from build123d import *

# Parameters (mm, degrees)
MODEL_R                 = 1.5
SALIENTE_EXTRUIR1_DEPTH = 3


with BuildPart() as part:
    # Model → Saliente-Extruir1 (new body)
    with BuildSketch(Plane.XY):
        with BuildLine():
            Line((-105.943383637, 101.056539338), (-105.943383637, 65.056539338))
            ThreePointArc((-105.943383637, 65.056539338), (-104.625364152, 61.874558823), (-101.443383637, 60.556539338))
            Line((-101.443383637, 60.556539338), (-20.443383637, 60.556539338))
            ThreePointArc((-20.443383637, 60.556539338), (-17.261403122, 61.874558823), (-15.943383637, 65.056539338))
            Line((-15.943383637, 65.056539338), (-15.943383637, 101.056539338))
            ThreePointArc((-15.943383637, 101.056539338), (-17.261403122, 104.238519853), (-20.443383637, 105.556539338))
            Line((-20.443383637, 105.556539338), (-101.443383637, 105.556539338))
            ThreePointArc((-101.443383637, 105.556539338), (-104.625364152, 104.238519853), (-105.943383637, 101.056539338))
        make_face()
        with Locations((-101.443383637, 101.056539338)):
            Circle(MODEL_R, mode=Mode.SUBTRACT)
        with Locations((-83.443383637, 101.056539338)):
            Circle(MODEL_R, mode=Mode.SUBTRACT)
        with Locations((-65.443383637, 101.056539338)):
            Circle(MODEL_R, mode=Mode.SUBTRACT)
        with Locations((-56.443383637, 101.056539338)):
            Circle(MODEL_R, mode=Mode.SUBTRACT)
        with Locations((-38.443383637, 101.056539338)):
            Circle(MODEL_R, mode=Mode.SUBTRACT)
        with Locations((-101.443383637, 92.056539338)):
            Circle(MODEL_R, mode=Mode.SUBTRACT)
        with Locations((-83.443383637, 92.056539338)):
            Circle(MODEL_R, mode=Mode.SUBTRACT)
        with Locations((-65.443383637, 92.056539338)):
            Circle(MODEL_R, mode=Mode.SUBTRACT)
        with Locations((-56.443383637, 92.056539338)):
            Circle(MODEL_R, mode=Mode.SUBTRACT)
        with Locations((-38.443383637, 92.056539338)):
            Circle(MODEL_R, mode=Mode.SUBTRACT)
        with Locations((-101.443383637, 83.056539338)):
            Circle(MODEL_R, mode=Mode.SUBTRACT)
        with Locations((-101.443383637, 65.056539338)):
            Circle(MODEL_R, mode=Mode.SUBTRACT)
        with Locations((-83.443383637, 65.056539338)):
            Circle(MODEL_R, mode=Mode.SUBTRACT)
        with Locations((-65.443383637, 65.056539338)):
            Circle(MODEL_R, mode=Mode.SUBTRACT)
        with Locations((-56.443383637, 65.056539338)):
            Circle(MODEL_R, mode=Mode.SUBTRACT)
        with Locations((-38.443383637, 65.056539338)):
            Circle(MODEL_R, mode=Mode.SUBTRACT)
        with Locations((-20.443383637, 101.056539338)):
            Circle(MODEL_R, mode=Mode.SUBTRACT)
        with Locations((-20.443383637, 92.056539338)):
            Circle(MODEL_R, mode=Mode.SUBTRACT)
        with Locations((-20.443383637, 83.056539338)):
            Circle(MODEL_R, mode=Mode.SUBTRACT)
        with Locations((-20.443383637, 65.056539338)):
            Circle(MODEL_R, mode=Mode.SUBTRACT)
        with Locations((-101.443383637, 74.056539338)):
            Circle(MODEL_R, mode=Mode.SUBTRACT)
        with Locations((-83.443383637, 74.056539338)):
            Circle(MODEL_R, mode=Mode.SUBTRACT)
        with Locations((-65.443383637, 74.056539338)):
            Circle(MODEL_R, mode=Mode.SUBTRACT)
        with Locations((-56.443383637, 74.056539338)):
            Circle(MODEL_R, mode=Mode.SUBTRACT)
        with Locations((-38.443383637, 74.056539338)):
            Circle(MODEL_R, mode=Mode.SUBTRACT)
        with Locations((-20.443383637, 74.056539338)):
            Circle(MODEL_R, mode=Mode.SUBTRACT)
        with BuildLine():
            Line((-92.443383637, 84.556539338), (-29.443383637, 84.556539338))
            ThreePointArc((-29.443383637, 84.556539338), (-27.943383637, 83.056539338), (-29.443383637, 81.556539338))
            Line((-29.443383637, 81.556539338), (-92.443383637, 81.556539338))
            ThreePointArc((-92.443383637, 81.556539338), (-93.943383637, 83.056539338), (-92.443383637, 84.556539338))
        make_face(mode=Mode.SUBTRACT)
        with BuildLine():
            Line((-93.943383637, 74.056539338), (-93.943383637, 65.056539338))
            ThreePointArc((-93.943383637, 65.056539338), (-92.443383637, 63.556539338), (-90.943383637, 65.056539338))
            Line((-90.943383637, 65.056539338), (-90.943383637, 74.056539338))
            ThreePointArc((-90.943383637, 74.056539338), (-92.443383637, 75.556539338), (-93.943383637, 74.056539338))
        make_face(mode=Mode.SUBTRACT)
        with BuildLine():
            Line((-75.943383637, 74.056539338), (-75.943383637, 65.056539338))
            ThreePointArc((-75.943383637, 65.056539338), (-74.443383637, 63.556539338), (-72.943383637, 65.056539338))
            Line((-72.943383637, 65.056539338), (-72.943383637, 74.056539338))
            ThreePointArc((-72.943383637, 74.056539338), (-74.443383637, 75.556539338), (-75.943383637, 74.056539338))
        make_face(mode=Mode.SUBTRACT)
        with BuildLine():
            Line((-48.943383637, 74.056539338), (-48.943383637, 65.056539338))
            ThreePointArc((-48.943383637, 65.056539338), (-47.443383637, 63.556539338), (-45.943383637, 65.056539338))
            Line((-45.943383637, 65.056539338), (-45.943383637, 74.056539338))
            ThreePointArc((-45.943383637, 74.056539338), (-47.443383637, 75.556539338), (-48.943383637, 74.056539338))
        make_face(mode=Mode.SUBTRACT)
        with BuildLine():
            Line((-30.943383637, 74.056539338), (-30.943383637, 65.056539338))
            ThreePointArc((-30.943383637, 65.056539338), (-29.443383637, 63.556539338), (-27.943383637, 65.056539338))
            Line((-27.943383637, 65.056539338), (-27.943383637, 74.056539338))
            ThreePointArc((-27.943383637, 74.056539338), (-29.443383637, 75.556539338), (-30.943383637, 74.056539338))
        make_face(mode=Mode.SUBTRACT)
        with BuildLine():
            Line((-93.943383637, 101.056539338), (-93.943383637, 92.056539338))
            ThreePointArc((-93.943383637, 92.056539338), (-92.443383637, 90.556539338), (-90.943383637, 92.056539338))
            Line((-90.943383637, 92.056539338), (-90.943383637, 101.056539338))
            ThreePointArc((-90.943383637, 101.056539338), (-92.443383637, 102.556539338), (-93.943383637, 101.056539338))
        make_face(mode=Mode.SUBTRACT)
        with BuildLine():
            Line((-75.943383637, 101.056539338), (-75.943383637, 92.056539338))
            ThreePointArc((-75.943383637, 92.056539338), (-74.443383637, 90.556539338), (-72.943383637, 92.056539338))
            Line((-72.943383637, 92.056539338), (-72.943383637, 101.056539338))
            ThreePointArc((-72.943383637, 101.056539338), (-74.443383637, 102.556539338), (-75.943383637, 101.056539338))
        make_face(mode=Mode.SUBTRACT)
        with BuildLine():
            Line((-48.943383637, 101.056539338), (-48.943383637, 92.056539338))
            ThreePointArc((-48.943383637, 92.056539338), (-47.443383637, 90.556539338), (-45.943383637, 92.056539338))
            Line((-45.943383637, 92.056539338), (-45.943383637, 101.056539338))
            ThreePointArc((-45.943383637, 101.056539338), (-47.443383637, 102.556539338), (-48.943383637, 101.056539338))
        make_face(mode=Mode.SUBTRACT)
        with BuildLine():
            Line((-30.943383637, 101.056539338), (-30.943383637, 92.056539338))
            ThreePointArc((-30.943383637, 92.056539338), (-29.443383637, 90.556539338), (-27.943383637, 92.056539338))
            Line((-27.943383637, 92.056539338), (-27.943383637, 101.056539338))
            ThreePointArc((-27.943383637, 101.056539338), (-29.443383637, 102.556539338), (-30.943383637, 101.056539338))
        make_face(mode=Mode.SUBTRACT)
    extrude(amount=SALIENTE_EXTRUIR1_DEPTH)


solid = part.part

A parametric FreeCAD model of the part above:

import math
import FreeCAD as App
import Part
import Sketcher
Q = App.Units.Quantity

doc = App.newDocument("Part")
params = doc.addObject("Spreadsheet::Sheet", "Params")
for row, (alias, value) in enumerate([
    ("sketch1_diameter", "3 mm"),
    ("sketch1_radius", "4.5 mm"),
    ("sketch1_width", "81 mm"),
    ("sketch1_width2", "63 mm"),
    ("sketch1_height", "36 mm"),
    ("pad1_length", "3 mm"),
], start=1):
    params.set(f"A{row}", alias)
    params.set(f"B{row}", "=" + value)
    params.setAlias(f"B{row}", alias)

body = doc.addObject("PartDesign::Body", "Body")

# Sketch on XY plane
sketch1 = body.newObject("Sketcher::SketchObject", "Sketch")
sketch1.AttachmentSupport = (doc.getObject("XY_Plane"), [""])
sketch1.MapMode = "FlatFace"
sketch1.addGeometry(Part.LineSegment(App.Vector(-105.9, 101.1, 0), App.Vector(-105.9, 65.1, 0)), False)
sketch1.addGeometry(Part.ArcOfCircle(Part.Circle(App.Vector(-101.4, 65.1, 0), App.Vector(0, 0, 1), 4.5), math.radians(-180), math.radians(-90)), False)
sketch1.addGeometry(Part.LineSegment(App.Vector(-101.4, 60.6, 0), App.Vector(-20.4, 60.6, 0)), False)
sketch1.addGeometry(Part.ArcOfCircle(Part.Circle(App.Vector(-20.4, 65.1, 0), App.Vector(0, 0, 1), 4.5), math.radians(-90), math.radians(0)), False)
sketch1.addGeometry(Part.LineSegment(App.Vector(-15.9, 65.1, 0), App.Vector(-15.9, 101.1, 0)), False)
sketch1.addGeometry(Part.ArcOfCircle(Part.Circle(App.Vector(-20.4, 101.1, 0), App.Vector(0, 0, 1), 4.5), math.radians(0), math.radians(90)), False)
sketch1.addGeometry(Part.LineSegment(App.Vector(-20.4, 105.6, 0), App.Vector(-101.4, 105.6, 0)), False)
sketch1.addGeometry(Part.ArcOfCircle(Part.Circle(App.Vector(-101.4, 101.1, 0), App.Vector(0, 0, 1), 4.5), math.radians(90), math.radians(180)), False)
sketch1.addGeometry(Part.Circle(App.Vector(-101.4, 65.1, 0), App.Vector(0, 0, 1), 1.5), False)
sketch1.addGeometry(Part.Circle(App.Vector(-83.4, 65.1, 0), App.Vector(0, 0, 1), 1.5), False)
sketch1.addGeometry(Part.LineSegment(App.Vector(-93.9, 65.1, 0), App.Vector(-93.9, 74.1, 0)), False)
sketch1.addGeometry(Part.ArcOfCircle(Part.Circle(App.Vector(-92.4, 74.1, 0), App.Vector(0, 0, 1), 1.5), math.radians(0), math.radians(180)), False)
sketch1.addGeometry(Part.LineSegment(App.Vector(-90.9, 74.1, 0), App.Vector(-90.9, 65.1, 0)), False)
sketch1.addGeometry(Part.ArcOfCircle(Part.Circle(App.Vector(-92.4, 65.1, 0), App.Vector(0, 0, 1), 1.5), math.radians(180), math.radians(360)), False)
sketch1.addGeometry(Part.Circle(App.Vector(-65.4, 65.1, 0), App.Vector(0, 0, 1), 1.5), False)
sketch1.addGeometry(Part.LineSegment(App.Vector(-75.9, 65.1, 0), App.Vector(-75.9, 74.1, 0)), False)
sketch1.addGeometry(Part.ArcOfCircle(Part.Circle(App.Vector(-74.4, 74.1, 0), App.Vector(0, 0, 1), 1.5), math.radians(0), math.radians(180)), False)
sketch1.addGeometry(Part.LineSegment(App.Vector(-72.9, 74.1, 0), App.Vector(-72.9, 65.1, 0)), False)
sketch1.addGeometry(Part.ArcOfCircle(Part.Circle(App.Vector(-74.4, 65.1, 0), App.Vector(0, 0, 1), 1.5), math.radians(180), math.radians(360)), False)
sketch1.addGeometry(Part.Circle(App.Vector(-101.4, 74.1, 0), App.Vector(0, 0, 1), 1.5), False)
sketch1.addGeometry(Part.Circle(App.Vector(-83.4, 74.1, 0), App.Vector(0, 0, 1), 1.5), False)
sketch1.addGeometry(Part.Circle(App.Vector(-65.4, 74.1, 0), App.Vector(0, 0, 1), 1.5), False)
sketch1.addGeometry(Part.Circle(App.Vector(-56.4, 65.1, 0), App.Vector(0, 0, 1), 1.5), False)
sketch1.addGeometry(Part.LineSegment(App.Vector(-48.9, 65.1, 0), App.Vector(-48.9, 74.1, 0)), False)
sketch1.addGeometry(Part.ArcOfCircle(Part.Circle(App.Vector(-47.4, 74.1, 0), App.Vector(0, 0, 1), 1.5), math.radians(0), math.radians(180)), False)
sketch1.addGeometry(Part.LineSegment(App.Vector(-45.9, 74.1, 0), App.Vector(-45.9, 65.1, 0)), False)
sketch1.addGeometry(Part.ArcOfCircle(Part.Circle(App.Vector(-47.4, 65.1, 0), App.Vector(0, 0, 1), 1.5), math.radians(180), math.radians(360)), False)
sketch1.addGeometry(Part.Circle(App.Vector(-38.4, 65.1, 0), App.Vector(0, 0, 1), 1.5), False)
sketch1.addGeometry(Part.Circle(App.Vector(-20.4, 65.1, 0), App.Vector(0, 0, 1), 1.5), False)
sketch1.addGeometry(Part.LineSegment(App.Vector(-30.9, 65.1, 0), App.Vector(-30.9, 74.1, 0)), False)
sketch1.addGeometry(Part.ArcOfCircle(Part.Circle(App.Vector(-29.4, 74.1, 0), App.Vector(0, 0, 1), 1.5), math.radians(0), math.radians(180)), False)
sketch1.addGeometry(Part.LineSegment(App.Vector(-27.9, 74.1, 0), App.Vector(-27.9, 65.1, 0)), False)
sketch1.addGeometry(Part.ArcOfCircle(Part.Circle(App.Vector(-29.4, 65.1, 0), App.Vector(0, 0, 1), 1.5), math.radians(180), math.radians(360)), False)
sketch1.addGeometry(Part.Circle(App.Vector(-56.4, 74.1, 0), App.Vector(0, 0, 1), 1.5), False)
sketch1.addGeometry(Part.Circle(App.Vector(-38.4, 74.1, 0), App.Vector(0, 0, 1), 1.5), False)
sketch1.addGeometry(Part.Circle(App.Vector(-20.4, 74.1, 0), App.Vector(0, 0, 1), 1.5), False)
sketch1.addGeometry(Part.Circle(App.Vector(-101.4, 83.1, 0), App.Vector(0, 0, 1), 1.5), False)
sketch1.addGeometry(Part.Circle(App.Vector(-101.4, 92.1, 0), App.Vector(0, 0, 1), 1.5), False)
sketch1.addGeometry(Part.Circle(App.Vector(-83.4, 92.1, 0), App.Vector(0, 0, 1), 1.5), False)
sketch1.addGeometry(Part.Circle(App.Vector(-65.4, 92.1, 0), App.Vector(0, 0, 1), 1.5), False)
sketch1.addGeometry(Part.LineSegment(App.Vector(-93.9, 92.1, 0), App.Vector(-93.9, 101.1, 0)), False)
sketch1.addGeometry(Part.ArcOfCircle(Part.Circle(App.Vector(-92.4, 101.1, 0), App.Vector(0, 0, 1), 1.5), math.radians(0), math.radians(180)), False)
sketch1.addGeometry(Part.LineSegment(App.Vector(-90.9, 101.1, 0), App.Vector(-90.9, 92.1, 0)), False)
sketch1.addGeometry(Part.ArcOfCircle(Part.Circle(App.Vector(-92.4, 92.1, 0), App.Vector(0, 0, 1), 1.5), math.radians(180), math.radians(360)), False)
sketch1.addGeometry(Part.Circle(App.Vector(-101.4, 101.1, 0), App.Vector(0, 0, 1), 1.5), False)
sketch1.addGeometry(Part.Circle(App.Vector(-83.4, 101.1, 0), App.Vector(0, 0, 1), 1.5), False)
sketch1.addGeometry(Part.LineSegment(App.Vector(-75.9, 92.1, 0), App.Vector(-75.9, 101.1, 0)), False)
sketch1.addGeometry(Part.ArcOfCircle(Part.Circle(App.Vector(-74.4, 101.1, 0), App.Vector(0, 0, 1), 1.5), math.radians(0), math.radians(180)), False)
sketch1.addGeometry(Part.LineSegment(App.Vector(-72.9, 101.1, 0), App.Vector(-72.9, 92.1, 0)), False)
sketch1.addGeometry(Part.ArcOfCircle(Part.Circle(App.Vector(-74.4, 92.1, 0), App.Vector(0, 0, 1), 1.5), math.radians(180), math.radians(360)), False)
sketch1.addGeometry(Part.Circle(App.Vector(-65.4, 101.1, 0), App.Vector(0, 0, 1), 1.5), False)
sketch1.addGeometry(Part.ArcOfCircle(Part.Circle(App.Vector(-92.4, 83.1, 0), App.Vector(0, 0, 1), 1.5), math.radians(90), math.radians(270)), False)
sketch1.addGeometry(Part.LineSegment(App.Vector(-92.4, 84.6, 0), App.Vector(-29.4, 84.6, 0)), False)
sketch1.addGeometry(Part.ArcOfCircle(Part.Circle(App.Vector(-29.4, 83.1, 0), App.Vector(0, 0, 1), 1.5), math.radians(-90), math.radians(90)), False)
sketch1.addGeometry(Part.LineSegment(App.Vector(-29.4, 81.6, 0), App.Vector(-92.4, 81.6, 0)), False)
sketch1.addGeometry(Part.Circle(App.Vector(-56.4, 92.1, 0), App.Vector(0, 0, 1), 1.5), False)
sketch1.addGeometry(Part.Circle(App.Vector(-20.4, 83.1, 0), App.Vector(0, 0, 1), 1.5), False)
sketch1.addGeometry(Part.Circle(App.Vector(-38.4, 92.1, 0), App.Vector(0, 0, 1), 1.5), False)
sketch1.addGeometry(Part.Circle(App.Vector(-20.4, 92.1, 0), App.Vector(0, 0, 1), 1.5), False)
sketch1.addGeometry(Part.LineSegment(App.Vector(-48.9, 92.1, 0), App.Vector(-48.9, 101.1, 0)), False)
sketch1.addGeometry(Part.ArcOfCircle(Part.Circle(App.Vector(-47.4, 101.1, 0), App.Vector(0, 0, 1), 1.5), math.radians(0), math.radians(180)), False)
sketch1.addGeometry(Part.LineSegment(App.Vector(-45.9, 101.1, 0), App.Vector(-45.9, 92.1, 0)), False)
sketch1.addGeometry(Part.ArcOfCircle(Part.Circle(App.Vector(-47.4, 92.1, 0), App.Vector(0, 0, 1), 1.5), math.radians(180), math.radians(360)), False)
sketch1.addGeometry(Part.Circle(App.Vector(-56.4, 101.1, 0), App.Vector(0, 0, 1), 1.5), False)
sketch1.addGeometry(Part.LineSegment(App.Vector(-30.9, 92.1, 0), App.Vector(-30.9, 101.1, 0)), False)
sketch1.addGeometry(Part.ArcOfCircle(Part.Circle(App.Vector(-29.4, 101.1, 0), App.Vector(0, 0, 1), 1.5), math.radians(0), math.radians(180)), False)
sketch1.addGeometry(Part.LineSegment(App.Vector(-27.9, 101.1, 0), App.Vector(-27.9, 92.1, 0)), False)
sketch1.addGeometry(Part.ArcOfCircle(Part.Circle(App.Vector(-29.4, 92.1, 0), App.Vector(0, 0, 1), 1.5), math.radians(180), math.radians(360)), False)
sketch1.addGeometry(Part.Circle(App.Vector(-38.4, 101.1, 0), App.Vector(0, 0, 1), 1.5), False)
sketch1.addGeometry(Part.Circle(App.Vector(-20.4, 101.1, 0), App.Vector(0, 0, 1), 1.5), False)
sketch1.addConstraint(Sketcher.Constraint("Tangent", 0, 2, 1, 1))
sketch1.addConstraint(Sketcher.Constraint("Tangent", 1, 2, 2, 1))
sketch1.addConstraint(Sketcher.Constraint("Tangent", 2, 2, 3, 1))
sketch1.addConstraint(Sketcher.Constraint("Tangent", 3, 2, 4, 1))
sketch1.addConstraint(Sketcher.Constraint("Tangent", 4, 2, 5, 1))
sketch1.addConstraint(Sketcher.Constraint("Tangent", 5, 2, 6, 1))
sketch1.addConstraint(Sketcher.Constraint("Tangent", 6, 2, 7, 1))
sketch1.addConstraint(Sketcher.Constraint("Tangent", 7, 2, 0, 1))
sketch1.addConstraint(Sketcher.Constraint("Tangent", 10, 2, 11, 2))
sketch1.addConstraint(Sketcher.Constraint("Tangent", 11, 1, 12, 1))
sketch1.addConstraint(Sketcher.Constraint("Tangent", 12, 2, 13, 2))
sketch1.addConstraint(Sketcher.Constraint("Tangent", 13, 1, 10, 1))
sketch1.addConstraint(Sketcher.Constraint("Tangent", 15, 2, 16, 2))
sketch1.addConstraint(Sketcher.Constraint("Tangent", 16, 1, 17, 1))
sketch1.addConstraint(Sketcher.Constraint("Tangent", 17, 2, 18, 2))
sketch1.addConstraint(Sketcher.Constraint("Tangent", 18, 1, 15, 1))
sketch1.addConstraint(Sketcher.Constraint("Tangent", 23, 2, 24, 2))
sketch1.addConstraint(Sketcher.Constraint("Tangent", 24, 1, 25, 1))
sketch1.addConstraint(Sketcher.Constraint("Tangent", 25, 2, 26, 2))
sketch1.addConstraint(Sketcher.Constraint("Tangent", 26, 1, 23, 1))
sketch1.addConstraint(Sketcher.Constraint("Tangent", 29, 2, 30, 2))
sketch1.addConstraint(Sketcher.Constraint("Tangent", 30, 1, 31, 1))
sketch1.addConstraint(Sketcher.Constraint("Tangent", 31, 2, 32, 2))
sketch1.addConstraint(Sketcher.Constraint("Tangent", 32, 1, 29, 1))
sketch1.addConstraint(Sketcher.Constraint("Tangent", 40, 2, 41, 2))
sketch1.addConstraint(Sketcher.Constraint("Tangent", 41, 1, 42, 1))
sketch1.addConstraint(Sketcher.Constraint("Tangent", 42, 2, 43, 2))
sketch1.addConstraint(Sketcher.Constraint("Tangent", 43, 1, 40, 1))
sketch1.addConstraint(Sketcher.Constraint("Tangent", 46, 2, 47, 2))
sketch1.addConstraint(Sketcher.Constraint("Tangent", 47, 1, 48, 1))
sketch1.addConstraint(Sketcher.Constraint("Tangent", 48, 2, 49, 2))
sketch1.addConstraint(Sketcher.Constraint("Tangent", 49, 1, 46, 1))
sketch1.addConstraint(Sketcher.Constraint("Tangent", 51, 1, 52, 1))
sketch1.addConstraint(Sketcher.Constraint("Tangent", 52, 2, 53, 2))
sketch1.addConstraint(Sketcher.Constraint("Tangent", 53, 1, 54, 1))
sketch1.addConstraint(Sketcher.Constraint("Tangent", 54, 2, 51, 2))
sketch1.addConstraint(Sketcher.Constraint("Tangent", 59, 2, 60, 2))
sketch1.addConstraint(Sketcher.Constraint("Tangent", 60, 1, 61, 1))
sketch1.addConstraint(Sketcher.Constraint("Tangent", 61, 2, 62, 2))
sketch1.addConstraint(Sketcher.Constraint("Tangent", 62, 1, 59, 1))
sketch1.addConstraint(Sketcher.Constraint("Tangent", 64, 2, 65, 2))
sketch1.addConstraint(Sketcher.Constraint("Tangent", 65, 1, 66, 1))
sketch1.addConstraint(Sketcher.Constraint("Tangent", 66, 2, 67, 2))
sketch1.addConstraint(Sketcher.Constraint("Tangent", 67, 1, 64, 1))
sketch1.addConstraint(Sketcher.Constraint("Vertical", 0))
sketch1.addConstraint(Sketcher.Constraint("Horizontal", 2))
sketch1.addConstraint(Sketcher.Constraint("Vertical", 4))
sketch1.addConstraint(Sketcher.Constraint("Horizontal", 6))
sketch1.addConstraint(Sketcher.Constraint("Vertical", 10))
sketch1.addConstraint(Sketcher.Constraint("Vertical", 12))
sketch1.addConstraint(Sketcher.Constraint("Vertical", 15))
sketch1.addConstraint(Sketcher.Constraint("Vertical", 17))
sketch1.addConstraint(Sketcher.Constraint("Vertical", 23))
sketch1.addConstraint(Sketcher.Constraint("Vertical", 25))
sketch1.addConstraint(Sketcher.Constraint("Vertical", 29))
sketch1.addConstraint(Sketcher.Constraint("Vertical", 31))
sketch1.addConstraint(Sketcher.Constraint("Vertical", 40))
sketch1.addConstraint(Sketcher.Constraint("Vertical", 42))
sketch1.addConstraint(Sketcher.Constraint("Vertical", 46))
sketch1.addConstraint(Sketcher.Constraint("Vertical", 48))
sketch1.addConstraint(Sketcher.Constraint("Horizontal", 52))
sketch1.addConstraint(Sketcher.Constraint("Horizontal", 54))
sketch1.addConstraint(Sketcher.Constraint("Vertical", 59))
sketch1.addConstraint(Sketcher.Constraint("Vertical", 61))
sketch1.addConstraint(Sketcher.Constraint("Vertical", 64))
sketch1.addConstraint(Sketcher.Constraint("Vertical", 66))
sketch1.addConstraint(Sketcher.Constraint("Coincident", 8, 3, 1, 3))
sketch1.addConstraint(Sketcher.Constraint("Coincident", 28, 3, 3, 3))
sketch1.addConstraint(Sketcher.Constraint("Coincident", 44, 3, 7, 3))
sketch1.addConstraint(Sketcher.Constraint("Coincident", 69, 3, 5, 3))
sketch1.addConstraint(Sketcher.Constraint("Equal", 1, 3))
sketch1.addConstraint(Sketcher.Constraint("Equal", 3, 5))
sketch1.addConstraint(Sketcher.Constraint("Equal", 5, 7))
sketch1.addConstraint(Sketcher.Constraint("Equal", 8, 9))
sketch1.addConstraint(Sketcher.Constraint("Equal", 9, 11))
sketch1.addConstraint(Sketcher.Constraint("Equal", 13, 14))
sketch1.addConstraint(Sketcher.Constraint("Equal", 14, 16))
sketch1.addConstraint(Sketcher.Constraint("Equal", 18, 19))
sketch1.addConstraint(Sketcher.Constraint("Equal", 19, 20))
sketch1.addConstraint(Sketcher.Constraint("Equal", 20, 21))
sketch1.addConstraint(Sketcher.Constraint("Equal", 21, 22))
sketch1.addConstraint(Sketcher.Constraint("Equal", 22, 24))
sketch1.addConstraint(Sketcher.Constraint("Equal", 26, 27))
sketch1.addConstraint(Sketcher.Constraint("Equal", 27, 28))
sketch1.addConstraint(Sketcher.Constraint("Equal", 28, 30))
sketch1.addConstraint(Sketcher.Constraint("Equal", 32, 33))
sketch1.addConstraint(Sketcher.Constraint("Equal", 33, 34))
sketch1.addConstraint(Sketcher.Constraint("Equal", 34, 35))
sketch1.addConstraint(Sketcher.Constraint("Equal", 35, 36))
sketch1.addConstraint(Sketcher.Constraint("Equal", 36, 37))
sketch1.addConstraint(Sketcher.Constraint("Equal", 37, 38))
sketch1.addConstraint(Sketcher.Constraint("Equal", 38, 39))
sketch1.addConstraint(Sketcher.Constraint("Equal", 39, 41))
sketch1.addConstraint(Sketcher.Constraint("Equal", 43, 44))
sketch1.addConstraint(Sketcher.Constraint("Equal", 44, 45))
sketch1.addConstraint(Sketcher.Constraint("Equal", 45, 47))
sketch1.addConstraint(Sketcher.Constraint("Equal", 49, 50))
sketch1.addConstraint(Sketcher.Constraint("Equal", 50, 51))
sketch1.addConstraint(Sketcher.Constraint("Equal", 53, 55))
sketch1.addConstraint(Sketcher.Constraint("Equal", 55, 56))
sketch1.addConstraint(Sketcher.Constraint("Equal", 56, 57))
sketch1.addConstraint(Sketcher.Constraint("Equal", 57, 58))
sketch1.addConstraint(Sketcher.Constraint("Equal", 58, 60))
sketch1.addConstraint(Sketcher.Constraint("Equal", 62, 63))
sketch1.addConstraint(Sketcher.Constraint("Equal", 63, 65))
sketch1.addConstraint(Sketcher.Constraint("Equal", 67, 68))
sketch1.addConstraint(Sketcher.Constraint("Equal", 68, 69))
sketch1.addConstraint(Sketcher.Constraint("Horizontal", 8, 3, 9, 3))
sketch1.addConstraint(Sketcher.Constraint("Horizontal", 9, 3, 13, 3))
sketch1.addConstraint(Sketcher.Constraint("Horizontal", 13, 3, 14, 3))
sketch1.addConstraint(Sketcher.Constraint("Horizontal", 11, 3, 16, 3))
sketch1.addConstraint(Sketcher.Constraint("Horizontal", 14, 3, 18, 3))
sketch1.addConstraint(Sketcher.Constraint("Horizontal", 16, 3, 19, 3))
sketch1.addConstraint(Sketcher.Constraint("Horizontal", 19, 3, 20, 3))
sketch1.addConstraint(Sketcher.Constraint("Horizontal", 20, 3, 21, 3))
sketch1.addConstraint(Sketcher.Constraint("Horizontal", 18, 3, 22, 3))
sketch1.addConstraint(Sketcher.Constraint("Horizontal", 21, 3, 24, 3))
sketch1.addConstraint(Sketcher.Constraint("Horizontal", 22, 3, 26, 3))
sketch1.addConstraint(Sketcher.Constraint("Horizontal", 26, 3, 27, 3))
sketch1.addConstraint(Sketcher.Constraint("Horizontal", 24, 3, 30, 3))
sketch1.addConstraint(Sketcher.Constraint("Horizontal", 28, 3, 32, 3))
sketch1.addConstraint(Sketcher.Constraint("Horizontal", 30, 3, 33, 3))
sketch1.addConstraint(Sketcher.Constraint("Horizontal", 33, 3, 34, 3))
sketch1.addConstraint(Sketcher.Constraint("Horizontal", 34, 3, 35, 3))
sketch1.addConstraint(Sketcher.Constraint("Horizontal", 37, 3, 38, 3))
sketch1.addConstraint(Sketcher.Constraint("Horizontal", 38, 3, 39, 3))
sketch1.addConstraint(Sketcher.Constraint("Horizontal", 7, 3, 41, 3))
sketch1.addConstraint(Sketcher.Constraint("Horizontal", 39, 3, 43, 3))
sketch1.addConstraint(Sketcher.Constraint("Horizontal", 44, 3, 45, 3))
sketch1.addConstraint(Sketcher.Constraint("Horizontal", 45, 3, 47, 3))
sketch1.addConstraint(Sketcher.Constraint("Horizontal", 43, 3, 49, 3))
sketch1.addConstraint(Sketcher.Constraint("Horizontal", 47, 3, 50, 3))
sketch1.addConstraint(Sketcher.Constraint("Horizontal", 36, 3, 51, 3))
sketch1.addConstraint(Sketcher.Constraint("Horizontal", 49, 3, 55, 3))
sketch1.addConstraint(Sketcher.Constraint("Horizontal", 53, 3, 56, 3))
sketch1.addConstraint(Sketcher.Constraint("Horizontal", 55, 3, 57, 3))
sketch1.addConstraint(Sketcher.Constraint("Horizontal", 57, 3, 58, 3))
sketch1.addConstraint(Sketcher.Constraint("Horizontal", 50, 3, 60, 3))
sketch1.addConstraint(Sketcher.Constraint("Horizontal", 58, 3, 62, 3))
sketch1.addConstraint(Sketcher.Constraint("Horizontal", 60, 3, 63, 3))
sketch1.addConstraint(Sketcher.Constraint("Horizontal", 63, 3, 65, 3))
sketch1.addConstraint(Sketcher.Constraint("Horizontal", 62, 3, 67, 3))
sketch1.addConstraint(Sketcher.Constraint("Horizontal", 65, 3, 68, 3))
sketch1.addConstraint(Sketcher.Constraint("Vertical", 8, 3, 19, 3))
sketch1.addConstraint(Sketcher.Constraint("Vertical", 9, 3, 20, 3))
sketch1.addConstraint(Sketcher.Constraint("Vertical", 14, 3, 21, 3))
sketch1.addConstraint(Sketcher.Constraint("Vertical", 22, 3, 33, 3))
sketch1.addConstraint(Sketcher.Constraint("Vertical", 27, 3, 34, 3))
sketch1.addConstraint(Sketcher.Constraint("Vertical", 28, 3, 35, 3))
sketch1.addConstraint(Sketcher.Constraint("Vertical", 19, 3, 36, 3))
sketch1.addConstraint(Sketcher.Constraint("Vertical", 36, 3, 37, 3))
sketch1.addConstraint(Sketcher.Constraint("Vertical", 20, 3, 38, 3))
sketch1.addConstraint(Sketcher.Constraint("Vertical", 21, 3, 39, 3))
sketch1.addConstraint(Sketcher.Constraint("Vertical", 13, 3, 41, 3))
sketch1.addConstraint(Sketcher.Constraint("Vertical", 38, 3, 45, 3))
sketch1.addConstraint(Sketcher.Constraint("Vertical", 18, 3, 47, 3))
sketch1.addConstraint(Sketcher.Constraint("Vertical", 39, 3, 50, 3))
sketch1.addConstraint(Sketcher.Constraint("Vertical", 43, 3, 51, 3))
sketch1.addConstraint(Sketcher.Constraint("Vertical", 32, 3, 53, 3))
sketch1.addConstraint(Sketcher.Constraint("Vertical", 33, 3, 55, 3))
sketch1.addConstraint(Sketcher.Constraint("Vertical", 35, 3, 56, 3))
sketch1.addConstraint(Sketcher.Constraint("Vertical", 34, 3, 57, 3))
sketch1.addConstraint(Sketcher.Constraint("Vertical", 56, 3, 58, 3))
sketch1.addConstraint(Sketcher.Constraint("Vertical", 26, 3, 60, 3))
sketch1.addConstraint(Sketcher.Constraint("Vertical", 55, 3, 63, 3))
sketch1.addConstraint(Sketcher.Constraint("Vertical", 53, 3, 65, 3))
sketch1.addConstraint(Sketcher.Constraint("Vertical", 57, 3, 68, 3))
sketch1.addConstraint(Sketcher.Constraint("Equal", 31, 40))
sketch1.addConstraint(Sketcher.Constraint("Diameter", 8, Q("3 mm")))
sketch1.addConstraint(Sketcher.Constraint("Radius", 1, Q("4.5 mm")))
sketch1.addConstraint(Sketcher.Constraint("DistanceX", 2, 1, 2, 2, Q("81 mm")))
sketch1.addConstraint(Sketcher.Constraint("DistanceX", 52, 1, 52, 2, Q("63 mm")))
sketch1.addConstraint(Sketcher.Constraint("DistanceY", 0, 2, 0, 1, Q("36 mm")))
sketch1.addConstraint(Sketcher.Constraint("DistanceY", 10, 1, 10, 2, Q("9 mm")))
sketch1.addConstraint(Sketcher.Constraint("DistanceY", -1, 1, 1, 3, Q("65.056539 mm")))
sketch1.addConstraint(Sketcher.Constraint("DistanceY", -1, 1, 36, 3, Q("83.056539 mm")))
sketch1.addConstraint(Sketcher.Constraint("DistanceX", 1, 3, -1, 1, Q("101.443384 mm")))
sketch1.addConstraint(Sketcher.Constraint("DistanceX", 9, 3, -1, 1, Q("83.443384 mm")))
sketch1.addConstraint(Sketcher.Constraint("DistanceX", 11, 3, -1, 1, Q("92.443384 mm")))
sketch1.addConstraint(Sketcher.Constraint("DistanceX", 14, 3, -1, 1, Q("65.443384 mm")))
sketch1.addConstraint(Sketcher.Constraint("DistanceX", 16, 3, -1, 1, Q("74.443384 mm")))
sketch1.addConstraint(Sketcher.Constraint("DistanceX", 22, 3, -1, 1, Q("56.443384 mm")))
sketch1.addConstraint(Sketcher.Constraint("DistanceX", 24, 3, -1, 1, Q("47.443384 mm")))
sketch1.addConstraint(Sketcher.Constraint("DistanceX", 27, 3, -1, 1, Q("38.443384 mm")))
sketch1.setExpression("Constraints[168]", "Params.sketch1_diameter")
sketch1.setExpression("Constraints[169]", "Params.sketch1_radius")
sketch1.setExpression("Constraints[170]", "Params.sketch1_width")
sketch1.setExpression("Constraints[171]", "Params.sketch1_width2")
sketch1.setExpression("Constraints[172]", "Params.sketch1_height")
pad1 = body.newObject("PartDesign::Pad", "Pad")
pad1.Profile = sketch1
pad1.setExpression("Length", "Params.pad1_length")

doc.recompute()
